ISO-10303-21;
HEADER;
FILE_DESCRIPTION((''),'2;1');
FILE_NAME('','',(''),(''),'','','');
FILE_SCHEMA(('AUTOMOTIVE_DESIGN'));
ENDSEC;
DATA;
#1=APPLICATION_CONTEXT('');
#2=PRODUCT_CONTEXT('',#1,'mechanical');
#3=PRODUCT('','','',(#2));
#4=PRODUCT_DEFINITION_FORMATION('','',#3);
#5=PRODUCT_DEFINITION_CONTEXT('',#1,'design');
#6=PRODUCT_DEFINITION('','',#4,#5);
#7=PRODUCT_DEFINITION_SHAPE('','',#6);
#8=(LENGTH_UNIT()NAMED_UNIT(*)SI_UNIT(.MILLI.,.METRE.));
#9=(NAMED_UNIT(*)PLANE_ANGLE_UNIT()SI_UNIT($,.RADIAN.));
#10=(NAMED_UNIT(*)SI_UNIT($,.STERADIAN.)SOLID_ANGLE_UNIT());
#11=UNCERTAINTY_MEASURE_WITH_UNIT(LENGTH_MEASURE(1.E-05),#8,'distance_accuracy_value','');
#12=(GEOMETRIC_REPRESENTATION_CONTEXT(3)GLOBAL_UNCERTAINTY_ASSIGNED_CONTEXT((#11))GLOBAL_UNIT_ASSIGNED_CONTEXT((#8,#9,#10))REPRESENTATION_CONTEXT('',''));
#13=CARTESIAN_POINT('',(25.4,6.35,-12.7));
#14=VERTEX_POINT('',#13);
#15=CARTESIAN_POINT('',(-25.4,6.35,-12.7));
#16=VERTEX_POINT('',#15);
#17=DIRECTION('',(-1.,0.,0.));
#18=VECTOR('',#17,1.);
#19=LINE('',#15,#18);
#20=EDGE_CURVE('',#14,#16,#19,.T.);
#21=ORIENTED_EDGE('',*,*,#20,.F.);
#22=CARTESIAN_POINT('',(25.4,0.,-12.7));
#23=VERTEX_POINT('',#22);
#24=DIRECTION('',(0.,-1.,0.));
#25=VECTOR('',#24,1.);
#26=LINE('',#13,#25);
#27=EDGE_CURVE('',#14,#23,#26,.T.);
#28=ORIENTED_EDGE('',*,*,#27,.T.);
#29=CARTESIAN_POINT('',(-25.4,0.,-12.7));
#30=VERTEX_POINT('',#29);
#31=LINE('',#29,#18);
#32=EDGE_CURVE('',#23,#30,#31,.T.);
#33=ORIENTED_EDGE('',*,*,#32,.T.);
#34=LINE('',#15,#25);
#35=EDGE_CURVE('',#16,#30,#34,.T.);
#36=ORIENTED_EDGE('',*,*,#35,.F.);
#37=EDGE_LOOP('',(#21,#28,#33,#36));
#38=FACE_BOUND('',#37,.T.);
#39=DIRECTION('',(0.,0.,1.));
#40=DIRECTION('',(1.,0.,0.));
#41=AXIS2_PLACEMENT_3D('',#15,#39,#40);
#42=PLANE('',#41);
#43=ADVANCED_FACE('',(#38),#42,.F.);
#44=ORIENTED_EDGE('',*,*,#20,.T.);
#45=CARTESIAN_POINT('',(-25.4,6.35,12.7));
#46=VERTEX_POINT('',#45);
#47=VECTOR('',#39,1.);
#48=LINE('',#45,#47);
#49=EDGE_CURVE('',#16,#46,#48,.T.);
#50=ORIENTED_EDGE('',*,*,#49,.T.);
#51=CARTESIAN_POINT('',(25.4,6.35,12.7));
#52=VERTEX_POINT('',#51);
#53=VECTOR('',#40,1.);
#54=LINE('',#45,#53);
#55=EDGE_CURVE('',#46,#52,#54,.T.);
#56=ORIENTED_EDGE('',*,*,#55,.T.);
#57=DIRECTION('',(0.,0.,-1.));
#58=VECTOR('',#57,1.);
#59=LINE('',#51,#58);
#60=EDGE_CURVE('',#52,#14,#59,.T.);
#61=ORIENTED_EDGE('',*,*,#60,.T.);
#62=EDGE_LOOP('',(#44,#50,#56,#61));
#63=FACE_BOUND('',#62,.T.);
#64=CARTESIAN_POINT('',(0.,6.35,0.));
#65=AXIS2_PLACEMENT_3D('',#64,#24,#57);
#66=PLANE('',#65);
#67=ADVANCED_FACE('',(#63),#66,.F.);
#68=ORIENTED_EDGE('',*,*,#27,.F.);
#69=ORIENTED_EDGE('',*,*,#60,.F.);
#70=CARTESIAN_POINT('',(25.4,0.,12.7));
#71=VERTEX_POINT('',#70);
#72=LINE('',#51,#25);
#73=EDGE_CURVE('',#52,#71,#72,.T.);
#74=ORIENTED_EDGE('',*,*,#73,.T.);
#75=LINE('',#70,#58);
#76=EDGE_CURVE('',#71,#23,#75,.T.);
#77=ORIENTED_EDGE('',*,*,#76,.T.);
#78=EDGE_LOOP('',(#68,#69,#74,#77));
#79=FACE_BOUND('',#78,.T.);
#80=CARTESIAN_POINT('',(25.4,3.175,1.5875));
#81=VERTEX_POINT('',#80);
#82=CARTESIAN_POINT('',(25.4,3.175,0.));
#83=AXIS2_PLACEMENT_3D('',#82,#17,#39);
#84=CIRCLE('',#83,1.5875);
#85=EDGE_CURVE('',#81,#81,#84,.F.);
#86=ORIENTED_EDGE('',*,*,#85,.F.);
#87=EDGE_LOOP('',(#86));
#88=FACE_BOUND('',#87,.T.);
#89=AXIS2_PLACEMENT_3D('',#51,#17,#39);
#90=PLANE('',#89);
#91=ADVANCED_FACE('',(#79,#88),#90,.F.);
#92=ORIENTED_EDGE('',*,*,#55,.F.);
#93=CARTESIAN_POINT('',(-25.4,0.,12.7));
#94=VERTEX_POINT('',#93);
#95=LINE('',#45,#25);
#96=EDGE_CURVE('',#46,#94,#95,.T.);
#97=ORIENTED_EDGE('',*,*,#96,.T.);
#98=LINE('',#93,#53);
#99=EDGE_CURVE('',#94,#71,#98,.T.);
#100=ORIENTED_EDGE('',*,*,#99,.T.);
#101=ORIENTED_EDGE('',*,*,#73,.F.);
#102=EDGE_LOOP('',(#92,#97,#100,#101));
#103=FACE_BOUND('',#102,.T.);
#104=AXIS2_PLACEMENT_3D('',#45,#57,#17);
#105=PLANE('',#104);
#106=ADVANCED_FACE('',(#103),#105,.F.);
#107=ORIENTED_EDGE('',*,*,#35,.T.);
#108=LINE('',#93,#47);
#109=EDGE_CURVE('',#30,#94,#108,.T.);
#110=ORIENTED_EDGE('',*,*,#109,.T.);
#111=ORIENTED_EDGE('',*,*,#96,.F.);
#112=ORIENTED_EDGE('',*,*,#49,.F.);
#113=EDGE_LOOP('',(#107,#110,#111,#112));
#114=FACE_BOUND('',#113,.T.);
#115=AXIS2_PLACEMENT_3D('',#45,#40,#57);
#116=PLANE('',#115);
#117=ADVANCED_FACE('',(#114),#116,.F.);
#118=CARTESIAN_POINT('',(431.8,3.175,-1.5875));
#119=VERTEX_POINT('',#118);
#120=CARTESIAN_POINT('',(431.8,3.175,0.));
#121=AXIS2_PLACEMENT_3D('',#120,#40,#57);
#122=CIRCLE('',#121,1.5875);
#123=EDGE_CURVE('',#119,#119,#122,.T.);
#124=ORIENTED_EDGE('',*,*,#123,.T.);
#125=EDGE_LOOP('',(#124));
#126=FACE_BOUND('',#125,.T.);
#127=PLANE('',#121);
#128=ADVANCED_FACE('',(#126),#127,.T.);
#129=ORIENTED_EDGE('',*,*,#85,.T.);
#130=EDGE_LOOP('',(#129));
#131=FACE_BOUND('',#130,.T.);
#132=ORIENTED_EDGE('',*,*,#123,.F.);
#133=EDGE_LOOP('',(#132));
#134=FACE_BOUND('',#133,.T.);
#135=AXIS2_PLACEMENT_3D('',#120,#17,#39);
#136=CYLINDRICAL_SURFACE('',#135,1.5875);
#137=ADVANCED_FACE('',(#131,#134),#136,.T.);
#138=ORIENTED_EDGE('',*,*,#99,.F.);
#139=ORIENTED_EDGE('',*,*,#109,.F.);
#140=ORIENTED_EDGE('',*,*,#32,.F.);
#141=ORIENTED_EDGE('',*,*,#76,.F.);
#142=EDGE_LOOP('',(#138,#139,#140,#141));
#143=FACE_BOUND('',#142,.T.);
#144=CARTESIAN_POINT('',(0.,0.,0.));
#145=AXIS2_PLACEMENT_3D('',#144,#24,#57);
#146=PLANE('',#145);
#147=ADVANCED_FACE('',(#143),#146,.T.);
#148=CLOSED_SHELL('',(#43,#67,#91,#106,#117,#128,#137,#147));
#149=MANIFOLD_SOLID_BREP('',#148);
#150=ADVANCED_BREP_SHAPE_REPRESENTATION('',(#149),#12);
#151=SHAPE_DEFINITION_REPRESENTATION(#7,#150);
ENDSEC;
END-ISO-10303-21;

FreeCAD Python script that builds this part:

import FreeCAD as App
import Part
import Sketcher
from FreeCAD import Vector
Q = App.Units.Quantity

doc = App.newDocument("Part")
body = doc.addObject("PartDesign::Body", "Body")

sketch1 = body.newObject("Sketcher::SketchObject", "Sketch")
sketch1.AttachmentSupport = (doc.getObject("XZ_Plane"), [""])
sketch1.MapMode = "FlatFace"
sketch1.addGeometry(Part.LineSegment(Vector(-25.4, -12.7, 0), Vector(-25.4, 12.7, 0)), False)
sketch1.addGeometry(Part.LineSegment(Vector(-25.4, 12.7, 0), Vector(25.4, 12.7, 0)), False)
sketch1.addGeometry(Part.LineSegment(Vector(25.4, 12.7, 0), Vector(25.4, -12.7, 0)), False)
sketch1.addGeometry(Part.LineSegment(Vector(25.4, -12.7, 0), Vector(-25.4, -12.7, 0)), False)
sketch1.addConstraint(Sketcher.Constraint("Coincident", 0, 2, 1, 1))
sketch1.addConstraint(Sketcher.Constraint("Coincident", 1, 2, 2, 1))
sketch1.addConstraint(Sketcher.Constraint("Coincident", 2, 2, 3, 1))
sketch1.addConstraint(Sketcher.Constraint("Coincident", 3, 2, 0, 1))
sketch1.addConstraint(Sketcher.Constraint("Vertical", 0))
sketch1.addConstraint(Sketcher.Constraint("Horizontal", 1))
sketch1.addConstraint(Sketcher.Constraint("Vertical", 2))
sketch1.addConstraint(Sketcher.Constraint("Horizontal", 3))
sketch1.addConstraint(Sketcher.Constraint("Symmetric", 0, 2, 2, 2, -1, 1))
sketch1.addConstraint(Sketcher.Constraint("DistanceX", 1, 1, 1, 2, Q("2 in")))
sketch1.addConstraint(Sketcher.Constraint("DistanceY", 0, 1, 0, 2, Q("1 in")))
pad1 = body.newObject("PartDesign::Pad", "Pad")
pad1.Profile = sketch1
pad1.Length = Q("0.25 in")
pad1.Reversed = True

sketch2 = body.newObject("Sketcher::SketchObject", "Sketch001")
sketch2.AttachmentSupport = (doc.getObject("YZ_Plane"), [""])
sketch2.MapMode = "FlatFace"
sketch2.AttachmentOffset = App.Placement(Vector(0, 0, 1 * 25.4), App.Rotation())
sketch2.addGeometry(Part.Circle(Vector(3.175, 0, 0), Vector(0, 0, 1), 1.5875), False)
sketch2.addConstraint(Sketcher.Constraint("PointOnObject", 0, 3, -1))
sketch2.addConstraint(Sketcher.Constraint("Diameter", 0, Q("0.125 in")))
sketch2.addConstraint(Sketcher.Constraint("DistanceX", -1, 1, 0, 3, Q("0.125 in")))
pad2 = body.newObject("PartDesign::Pad", "Pad001")
pad2.Profile = sketch2
pad2.Length = Q("16 in")

doc.recompute()
